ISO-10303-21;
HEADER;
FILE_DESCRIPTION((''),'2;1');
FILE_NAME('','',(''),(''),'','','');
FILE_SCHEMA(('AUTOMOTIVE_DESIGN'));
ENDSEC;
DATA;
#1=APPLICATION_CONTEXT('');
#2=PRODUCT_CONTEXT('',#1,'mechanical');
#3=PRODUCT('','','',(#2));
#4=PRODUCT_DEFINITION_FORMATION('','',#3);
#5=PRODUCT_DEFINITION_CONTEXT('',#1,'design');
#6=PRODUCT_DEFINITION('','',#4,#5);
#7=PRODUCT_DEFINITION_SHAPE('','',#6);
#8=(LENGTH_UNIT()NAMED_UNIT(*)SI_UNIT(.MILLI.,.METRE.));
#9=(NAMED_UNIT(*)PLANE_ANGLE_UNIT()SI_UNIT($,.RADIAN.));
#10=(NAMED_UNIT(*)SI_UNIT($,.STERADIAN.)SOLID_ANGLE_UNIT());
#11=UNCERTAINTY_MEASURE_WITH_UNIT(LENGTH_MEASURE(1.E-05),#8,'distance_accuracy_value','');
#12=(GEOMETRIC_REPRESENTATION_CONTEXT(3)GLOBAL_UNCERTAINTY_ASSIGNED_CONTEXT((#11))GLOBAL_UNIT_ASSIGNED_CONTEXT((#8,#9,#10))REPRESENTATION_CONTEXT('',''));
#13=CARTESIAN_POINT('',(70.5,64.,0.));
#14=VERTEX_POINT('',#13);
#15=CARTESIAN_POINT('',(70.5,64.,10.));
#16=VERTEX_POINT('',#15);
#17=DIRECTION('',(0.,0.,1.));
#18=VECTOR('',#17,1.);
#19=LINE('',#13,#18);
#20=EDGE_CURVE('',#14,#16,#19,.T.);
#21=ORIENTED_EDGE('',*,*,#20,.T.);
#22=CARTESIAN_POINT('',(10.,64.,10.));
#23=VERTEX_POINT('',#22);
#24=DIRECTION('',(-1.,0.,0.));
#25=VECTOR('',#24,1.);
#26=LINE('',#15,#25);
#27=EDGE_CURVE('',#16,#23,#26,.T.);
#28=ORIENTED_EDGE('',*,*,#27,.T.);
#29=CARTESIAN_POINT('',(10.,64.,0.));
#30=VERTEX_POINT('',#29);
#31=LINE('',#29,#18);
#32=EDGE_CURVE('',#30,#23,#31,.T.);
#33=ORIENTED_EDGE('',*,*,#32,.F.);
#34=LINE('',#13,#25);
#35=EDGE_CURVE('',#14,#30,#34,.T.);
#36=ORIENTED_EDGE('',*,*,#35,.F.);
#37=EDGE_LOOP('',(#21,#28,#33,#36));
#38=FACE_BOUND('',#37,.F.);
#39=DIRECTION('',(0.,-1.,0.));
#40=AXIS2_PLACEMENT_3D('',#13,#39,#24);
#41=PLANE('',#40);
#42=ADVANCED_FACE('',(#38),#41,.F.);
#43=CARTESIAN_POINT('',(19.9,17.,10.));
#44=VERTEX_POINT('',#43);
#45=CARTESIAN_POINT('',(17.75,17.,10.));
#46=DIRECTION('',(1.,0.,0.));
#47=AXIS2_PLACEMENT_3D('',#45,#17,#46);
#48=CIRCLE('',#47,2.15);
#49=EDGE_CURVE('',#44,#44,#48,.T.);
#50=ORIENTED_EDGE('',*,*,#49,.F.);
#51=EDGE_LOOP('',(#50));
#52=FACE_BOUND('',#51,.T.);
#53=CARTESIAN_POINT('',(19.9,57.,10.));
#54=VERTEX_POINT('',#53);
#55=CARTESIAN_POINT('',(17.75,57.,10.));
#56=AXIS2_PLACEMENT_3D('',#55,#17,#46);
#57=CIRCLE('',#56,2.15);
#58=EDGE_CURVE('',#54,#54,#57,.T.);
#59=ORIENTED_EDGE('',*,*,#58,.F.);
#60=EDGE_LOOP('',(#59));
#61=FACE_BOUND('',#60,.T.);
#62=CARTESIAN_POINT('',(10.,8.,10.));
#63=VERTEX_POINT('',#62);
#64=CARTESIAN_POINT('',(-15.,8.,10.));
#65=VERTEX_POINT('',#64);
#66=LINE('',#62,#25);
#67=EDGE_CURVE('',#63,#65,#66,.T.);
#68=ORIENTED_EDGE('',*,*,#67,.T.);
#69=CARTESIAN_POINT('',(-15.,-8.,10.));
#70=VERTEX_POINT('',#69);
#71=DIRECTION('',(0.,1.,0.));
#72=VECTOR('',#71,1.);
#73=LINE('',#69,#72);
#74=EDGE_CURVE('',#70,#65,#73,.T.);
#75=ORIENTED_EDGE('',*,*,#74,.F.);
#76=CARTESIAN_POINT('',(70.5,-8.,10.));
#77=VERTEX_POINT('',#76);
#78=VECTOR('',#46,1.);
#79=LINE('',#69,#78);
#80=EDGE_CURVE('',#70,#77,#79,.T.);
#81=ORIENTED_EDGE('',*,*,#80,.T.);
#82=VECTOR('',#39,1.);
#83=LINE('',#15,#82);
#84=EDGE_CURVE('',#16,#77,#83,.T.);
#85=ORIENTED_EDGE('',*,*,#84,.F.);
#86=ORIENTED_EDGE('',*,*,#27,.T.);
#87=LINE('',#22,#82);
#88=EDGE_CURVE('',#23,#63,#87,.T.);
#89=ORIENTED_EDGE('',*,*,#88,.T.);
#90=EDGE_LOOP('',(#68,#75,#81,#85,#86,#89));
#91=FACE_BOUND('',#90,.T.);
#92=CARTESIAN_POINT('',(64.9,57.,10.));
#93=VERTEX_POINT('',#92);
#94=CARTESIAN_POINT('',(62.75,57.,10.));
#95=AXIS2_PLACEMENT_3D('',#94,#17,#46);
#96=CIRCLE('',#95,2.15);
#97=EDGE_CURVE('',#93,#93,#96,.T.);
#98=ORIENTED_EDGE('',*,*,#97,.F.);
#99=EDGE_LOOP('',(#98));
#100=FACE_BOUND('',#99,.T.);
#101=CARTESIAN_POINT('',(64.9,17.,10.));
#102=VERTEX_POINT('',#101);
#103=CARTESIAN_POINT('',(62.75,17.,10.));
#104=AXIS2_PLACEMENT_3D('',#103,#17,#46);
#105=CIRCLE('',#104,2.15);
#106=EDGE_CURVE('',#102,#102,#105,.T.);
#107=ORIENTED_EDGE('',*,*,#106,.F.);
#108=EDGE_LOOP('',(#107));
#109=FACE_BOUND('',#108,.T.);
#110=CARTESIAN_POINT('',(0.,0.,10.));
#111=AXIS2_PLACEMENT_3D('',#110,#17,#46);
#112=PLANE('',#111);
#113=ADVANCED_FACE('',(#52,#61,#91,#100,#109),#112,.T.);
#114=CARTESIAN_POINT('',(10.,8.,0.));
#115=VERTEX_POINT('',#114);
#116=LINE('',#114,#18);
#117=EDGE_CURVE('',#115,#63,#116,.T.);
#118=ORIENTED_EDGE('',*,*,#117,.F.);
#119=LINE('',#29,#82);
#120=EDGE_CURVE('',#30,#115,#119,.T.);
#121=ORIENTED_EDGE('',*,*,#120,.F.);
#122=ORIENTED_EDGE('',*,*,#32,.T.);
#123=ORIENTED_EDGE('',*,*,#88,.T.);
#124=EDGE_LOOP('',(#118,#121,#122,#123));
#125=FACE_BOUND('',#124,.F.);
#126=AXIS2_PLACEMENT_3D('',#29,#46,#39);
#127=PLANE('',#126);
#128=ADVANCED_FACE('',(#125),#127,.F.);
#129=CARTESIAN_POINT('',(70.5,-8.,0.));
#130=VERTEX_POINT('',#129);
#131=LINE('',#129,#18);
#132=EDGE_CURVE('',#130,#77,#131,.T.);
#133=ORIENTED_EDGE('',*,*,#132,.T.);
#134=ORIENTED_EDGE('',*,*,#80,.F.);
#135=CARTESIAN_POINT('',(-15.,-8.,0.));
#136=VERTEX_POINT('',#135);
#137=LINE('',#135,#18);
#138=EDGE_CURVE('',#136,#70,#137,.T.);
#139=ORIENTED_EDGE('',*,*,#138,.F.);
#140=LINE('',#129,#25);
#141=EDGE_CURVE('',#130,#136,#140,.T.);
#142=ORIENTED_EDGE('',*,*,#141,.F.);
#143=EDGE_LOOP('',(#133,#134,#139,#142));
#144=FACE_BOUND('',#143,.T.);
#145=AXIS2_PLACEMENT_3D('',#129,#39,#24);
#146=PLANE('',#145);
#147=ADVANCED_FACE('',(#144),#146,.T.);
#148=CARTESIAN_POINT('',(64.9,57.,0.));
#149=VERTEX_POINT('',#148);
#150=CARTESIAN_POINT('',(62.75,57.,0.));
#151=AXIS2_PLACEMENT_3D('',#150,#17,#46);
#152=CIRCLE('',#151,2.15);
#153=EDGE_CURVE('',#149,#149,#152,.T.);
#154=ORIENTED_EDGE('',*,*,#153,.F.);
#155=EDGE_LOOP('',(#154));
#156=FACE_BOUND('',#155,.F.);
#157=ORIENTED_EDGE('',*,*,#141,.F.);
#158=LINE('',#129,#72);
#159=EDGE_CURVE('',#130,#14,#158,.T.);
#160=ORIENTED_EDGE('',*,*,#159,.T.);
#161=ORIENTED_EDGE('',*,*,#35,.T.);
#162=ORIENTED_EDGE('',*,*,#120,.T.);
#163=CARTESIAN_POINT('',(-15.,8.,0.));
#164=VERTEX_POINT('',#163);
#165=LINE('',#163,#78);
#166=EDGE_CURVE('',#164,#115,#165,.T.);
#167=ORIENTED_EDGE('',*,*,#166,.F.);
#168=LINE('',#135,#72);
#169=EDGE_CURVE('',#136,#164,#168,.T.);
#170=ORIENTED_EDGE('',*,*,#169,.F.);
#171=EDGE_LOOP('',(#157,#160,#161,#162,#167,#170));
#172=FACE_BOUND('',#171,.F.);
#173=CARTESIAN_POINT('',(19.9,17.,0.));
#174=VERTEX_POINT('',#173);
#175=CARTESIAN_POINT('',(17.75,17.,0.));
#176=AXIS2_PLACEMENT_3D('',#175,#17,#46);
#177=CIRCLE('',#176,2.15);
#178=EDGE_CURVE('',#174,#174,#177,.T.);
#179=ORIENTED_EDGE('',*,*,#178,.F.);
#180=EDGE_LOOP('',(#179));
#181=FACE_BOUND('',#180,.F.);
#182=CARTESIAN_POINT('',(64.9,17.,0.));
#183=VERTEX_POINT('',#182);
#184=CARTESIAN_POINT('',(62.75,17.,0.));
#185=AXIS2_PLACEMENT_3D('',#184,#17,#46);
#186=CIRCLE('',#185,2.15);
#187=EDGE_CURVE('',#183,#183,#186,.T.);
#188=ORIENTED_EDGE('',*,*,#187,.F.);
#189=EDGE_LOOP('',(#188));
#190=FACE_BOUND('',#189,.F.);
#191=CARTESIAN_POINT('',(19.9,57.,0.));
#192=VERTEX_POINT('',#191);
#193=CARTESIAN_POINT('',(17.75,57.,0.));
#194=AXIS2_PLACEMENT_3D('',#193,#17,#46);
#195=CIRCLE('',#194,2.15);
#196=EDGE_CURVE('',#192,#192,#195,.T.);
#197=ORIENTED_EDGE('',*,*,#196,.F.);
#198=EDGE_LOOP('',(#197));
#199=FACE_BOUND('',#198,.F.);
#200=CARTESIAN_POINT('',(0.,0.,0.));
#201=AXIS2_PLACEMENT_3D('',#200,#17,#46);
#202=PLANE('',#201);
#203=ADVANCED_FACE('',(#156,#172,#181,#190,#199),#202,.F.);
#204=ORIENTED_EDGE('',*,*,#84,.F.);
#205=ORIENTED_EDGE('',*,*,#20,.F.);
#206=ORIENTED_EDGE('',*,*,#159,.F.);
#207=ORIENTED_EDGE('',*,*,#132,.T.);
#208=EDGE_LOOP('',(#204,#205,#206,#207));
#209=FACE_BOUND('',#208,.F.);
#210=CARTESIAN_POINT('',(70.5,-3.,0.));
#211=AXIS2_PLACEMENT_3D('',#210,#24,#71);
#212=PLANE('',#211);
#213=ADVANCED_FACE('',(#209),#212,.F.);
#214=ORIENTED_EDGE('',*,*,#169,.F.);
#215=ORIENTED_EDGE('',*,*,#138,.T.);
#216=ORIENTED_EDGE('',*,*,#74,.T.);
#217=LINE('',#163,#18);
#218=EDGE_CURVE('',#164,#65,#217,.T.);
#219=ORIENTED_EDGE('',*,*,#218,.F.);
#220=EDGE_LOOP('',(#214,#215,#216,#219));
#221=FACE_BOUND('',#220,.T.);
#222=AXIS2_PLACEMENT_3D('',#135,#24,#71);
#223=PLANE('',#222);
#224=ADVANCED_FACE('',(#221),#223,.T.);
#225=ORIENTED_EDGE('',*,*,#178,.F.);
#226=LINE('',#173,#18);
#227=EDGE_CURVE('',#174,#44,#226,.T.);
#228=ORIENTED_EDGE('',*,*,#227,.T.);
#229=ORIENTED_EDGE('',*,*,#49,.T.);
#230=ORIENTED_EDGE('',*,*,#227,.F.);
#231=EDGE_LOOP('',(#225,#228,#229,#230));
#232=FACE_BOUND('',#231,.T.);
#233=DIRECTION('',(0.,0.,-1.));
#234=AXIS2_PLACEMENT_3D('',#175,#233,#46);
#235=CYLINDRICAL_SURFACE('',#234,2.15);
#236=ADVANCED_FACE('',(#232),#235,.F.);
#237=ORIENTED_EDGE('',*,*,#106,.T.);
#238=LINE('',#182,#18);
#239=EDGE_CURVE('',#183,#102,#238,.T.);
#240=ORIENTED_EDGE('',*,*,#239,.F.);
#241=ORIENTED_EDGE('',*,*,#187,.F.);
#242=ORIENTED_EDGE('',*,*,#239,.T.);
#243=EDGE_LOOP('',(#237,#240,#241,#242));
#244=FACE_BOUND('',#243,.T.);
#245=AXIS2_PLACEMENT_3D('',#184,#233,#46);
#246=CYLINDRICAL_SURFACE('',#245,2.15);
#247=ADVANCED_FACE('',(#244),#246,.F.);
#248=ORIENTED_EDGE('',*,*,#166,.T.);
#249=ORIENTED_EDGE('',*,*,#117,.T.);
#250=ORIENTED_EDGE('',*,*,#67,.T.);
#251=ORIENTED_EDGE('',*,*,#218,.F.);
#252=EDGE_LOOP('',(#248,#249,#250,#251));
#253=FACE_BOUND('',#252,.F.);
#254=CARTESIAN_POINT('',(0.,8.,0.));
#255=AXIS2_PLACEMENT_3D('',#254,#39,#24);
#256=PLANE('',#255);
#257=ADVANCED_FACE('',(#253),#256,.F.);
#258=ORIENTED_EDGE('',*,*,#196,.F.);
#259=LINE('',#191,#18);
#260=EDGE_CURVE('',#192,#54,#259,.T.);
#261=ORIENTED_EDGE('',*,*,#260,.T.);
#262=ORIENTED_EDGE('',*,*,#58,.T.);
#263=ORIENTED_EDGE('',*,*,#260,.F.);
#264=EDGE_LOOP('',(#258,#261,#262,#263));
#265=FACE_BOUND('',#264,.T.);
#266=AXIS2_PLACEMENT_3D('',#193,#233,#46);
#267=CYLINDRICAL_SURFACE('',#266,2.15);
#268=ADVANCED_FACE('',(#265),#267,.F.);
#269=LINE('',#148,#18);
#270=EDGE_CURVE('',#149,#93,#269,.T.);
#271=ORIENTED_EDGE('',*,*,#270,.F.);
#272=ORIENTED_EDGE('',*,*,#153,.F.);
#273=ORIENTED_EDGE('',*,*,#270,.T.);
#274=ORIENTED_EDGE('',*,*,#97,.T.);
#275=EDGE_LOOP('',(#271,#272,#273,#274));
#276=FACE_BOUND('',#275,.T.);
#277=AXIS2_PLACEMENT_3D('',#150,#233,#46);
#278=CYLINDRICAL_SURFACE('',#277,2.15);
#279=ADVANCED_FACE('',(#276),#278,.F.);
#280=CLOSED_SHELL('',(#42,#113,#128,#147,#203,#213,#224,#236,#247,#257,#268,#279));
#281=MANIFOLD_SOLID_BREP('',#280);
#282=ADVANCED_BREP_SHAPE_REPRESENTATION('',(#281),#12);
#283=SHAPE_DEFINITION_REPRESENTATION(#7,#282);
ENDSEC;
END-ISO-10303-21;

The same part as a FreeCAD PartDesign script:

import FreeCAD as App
import Part
import Sketcher

V = App.Vector
Q = App.Units.Quantity

doc = App.newDocument("Part")
params = doc.addObject("Spreadsheet::Sheet", "Params")
for row, (alias, value) in enumerate([
    ("sketch1_height", "16 mm"),
    ("sketch1_diameter", "4.3 mm"),
    ("sketch1_width", "25 mm"),
    ("sketch1_height2", "56 mm"),
    ("sketch1_width2", "60.5 mm"),
    ("pad1_length", "10 mm"),
], start=1):
    params.set(f"A{row}", alias)
    params.set(f"B{row}", "=" + value)
    params.setAlias(f"B{row}", alias)

body = doc.addObject("PartDesign::Body", "Body")

# Sketch on XY plane
sketch1 = body.newObject("Sketcher::SketchObject", "Sketch")
sketch1.AttachmentSupport = (doc.getObject("XY_Plane"), [""])
sketch1.MapMode = "FlatFace"
sketch1.addGeometry([
    Part.LineSegment(V(70.5, 64, 0), V(10, 64, 0)),  # 0
    Part.LineSegment(V(10, 64, 0), V(10, 8, 0)),  # 1
    Part.LineSegment(V(10, 8, 0), V(-15, 8, 0)),  # 2
    Part.LineSegment(V(-15, 8, 0), V(-15, -8, 0)),  # 3
    Part.LineSegment(V(-15, -8, 0), V(70.5, -8, 0)),  # 4
    Part.LineSegment(V(70.5, -8, 0), V(70.5, 64, 0)),  # 5
    Part.Circle(V(17.8, 17, 0), V(0, 0, 1), 2.1),  # 6
    Part.Circle(V(62.8, 17, 0), V(0, 0, 1), 2.1),  # 7
    Part.Circle(V(17.8, 57, 0), V(0, 0, 1), 2.1),  # 8
    Part.Circle(V(62.8, 57, 0), V(0, 0, 1), 2.1),  # 9
], False)
sketch1.addConstraint([
    Sketcher.Constraint("Coincident", 0, 2, 1, 1),
    Sketcher.Constraint("Coincident", 1, 2, 2, 1),
    Sketcher.Constraint("Coincident", 2, 2, 3, 1),
    Sketcher.Constraint("Coincident", 3, 2, 4, 1),
    Sketcher.Constraint("Coincident", 4, 2, 5, 1),
    Sketcher.Constraint("Coincident", 5, 2, 0, 1),
    Sketcher.Constraint("Horizontal", 0),
    Sketcher.Constraint("Vertical", 1),
    Sketcher.Constraint("Horizontal", 2),
    Sketcher.Constraint("Vertical", 3),
    Sketcher.Constraint("Horizontal", 4),
    Sketcher.Constraint("Vertical", 5),
    Sketcher.Constraint("Equal", 6, 7),
    Sketcher.Constraint("Equal", 7, 8),
    Sketcher.Constraint("Equal", 8, 9),
    Sketcher.Constraint("Horizontal", 6, 3, 7, 3),
    Sketcher.Constraint("Horizontal", 8, 3, 9, 3),
    Sketcher.Constraint("Vertical", 6, 3, 8, 3),
    Sketcher.Constraint("Vertical", 7, 3, 9, 3),
    Sketcher.Constraint("DistanceY", 3, 2, 3, 1, Q("16 mm")),
    Sketcher.Constraint("Diameter", 6, Q("4.3 mm")),
    Sketcher.Constraint("DistanceX", 2, 2, 2, 1, Q("25 mm")),
    Sketcher.Constraint("DistanceY", 1, 2, 1, 1, Q("56 mm")),
    Sketcher.Constraint("DistanceX", 0, 2, 0, 1, Q("60.5 mm")),
    Sketcher.Constraint("DistanceY", -1, 1, 6, 3, Q("17 mm")),
    Sketcher.Constraint("DistanceY", -1, 1, 8, 3, Q("57 mm")),
    Sketcher.Constraint("DistanceX", -1, 1, 0, 2, Q("10 mm")),
    Sketcher.Constraint("DistanceY", -1, 1, 0, 2, Q("64 mm")),
    Sketcher.Constraint("DistanceX", 6, 3, 7, 3, Q("45 mm")),
    Sketcher.Constraint("DistanceX", -1, 1, 6, 3, Q("17.75 mm")),
])
sketch1.setExpression("Constraints[19]", "Params.sketch1_height")
sketch1.setExpression("Constraints[20]", "Params.sketch1_diameter")
sketch1.setExpression("Constraints[21]", "Params.sketch1_width")
sketch1.setExpression("Constraints[22]", "Params.sketch1_height2")
sketch1.setExpression("Constraints[23]", "Params.sketch1_width2")
pad1 = body.newObject("PartDesign::Pad", "Pad")
pad1.Profile = sketch1
pad1.setExpression("Length", "Params.pad1_length")

doc.recompute()
